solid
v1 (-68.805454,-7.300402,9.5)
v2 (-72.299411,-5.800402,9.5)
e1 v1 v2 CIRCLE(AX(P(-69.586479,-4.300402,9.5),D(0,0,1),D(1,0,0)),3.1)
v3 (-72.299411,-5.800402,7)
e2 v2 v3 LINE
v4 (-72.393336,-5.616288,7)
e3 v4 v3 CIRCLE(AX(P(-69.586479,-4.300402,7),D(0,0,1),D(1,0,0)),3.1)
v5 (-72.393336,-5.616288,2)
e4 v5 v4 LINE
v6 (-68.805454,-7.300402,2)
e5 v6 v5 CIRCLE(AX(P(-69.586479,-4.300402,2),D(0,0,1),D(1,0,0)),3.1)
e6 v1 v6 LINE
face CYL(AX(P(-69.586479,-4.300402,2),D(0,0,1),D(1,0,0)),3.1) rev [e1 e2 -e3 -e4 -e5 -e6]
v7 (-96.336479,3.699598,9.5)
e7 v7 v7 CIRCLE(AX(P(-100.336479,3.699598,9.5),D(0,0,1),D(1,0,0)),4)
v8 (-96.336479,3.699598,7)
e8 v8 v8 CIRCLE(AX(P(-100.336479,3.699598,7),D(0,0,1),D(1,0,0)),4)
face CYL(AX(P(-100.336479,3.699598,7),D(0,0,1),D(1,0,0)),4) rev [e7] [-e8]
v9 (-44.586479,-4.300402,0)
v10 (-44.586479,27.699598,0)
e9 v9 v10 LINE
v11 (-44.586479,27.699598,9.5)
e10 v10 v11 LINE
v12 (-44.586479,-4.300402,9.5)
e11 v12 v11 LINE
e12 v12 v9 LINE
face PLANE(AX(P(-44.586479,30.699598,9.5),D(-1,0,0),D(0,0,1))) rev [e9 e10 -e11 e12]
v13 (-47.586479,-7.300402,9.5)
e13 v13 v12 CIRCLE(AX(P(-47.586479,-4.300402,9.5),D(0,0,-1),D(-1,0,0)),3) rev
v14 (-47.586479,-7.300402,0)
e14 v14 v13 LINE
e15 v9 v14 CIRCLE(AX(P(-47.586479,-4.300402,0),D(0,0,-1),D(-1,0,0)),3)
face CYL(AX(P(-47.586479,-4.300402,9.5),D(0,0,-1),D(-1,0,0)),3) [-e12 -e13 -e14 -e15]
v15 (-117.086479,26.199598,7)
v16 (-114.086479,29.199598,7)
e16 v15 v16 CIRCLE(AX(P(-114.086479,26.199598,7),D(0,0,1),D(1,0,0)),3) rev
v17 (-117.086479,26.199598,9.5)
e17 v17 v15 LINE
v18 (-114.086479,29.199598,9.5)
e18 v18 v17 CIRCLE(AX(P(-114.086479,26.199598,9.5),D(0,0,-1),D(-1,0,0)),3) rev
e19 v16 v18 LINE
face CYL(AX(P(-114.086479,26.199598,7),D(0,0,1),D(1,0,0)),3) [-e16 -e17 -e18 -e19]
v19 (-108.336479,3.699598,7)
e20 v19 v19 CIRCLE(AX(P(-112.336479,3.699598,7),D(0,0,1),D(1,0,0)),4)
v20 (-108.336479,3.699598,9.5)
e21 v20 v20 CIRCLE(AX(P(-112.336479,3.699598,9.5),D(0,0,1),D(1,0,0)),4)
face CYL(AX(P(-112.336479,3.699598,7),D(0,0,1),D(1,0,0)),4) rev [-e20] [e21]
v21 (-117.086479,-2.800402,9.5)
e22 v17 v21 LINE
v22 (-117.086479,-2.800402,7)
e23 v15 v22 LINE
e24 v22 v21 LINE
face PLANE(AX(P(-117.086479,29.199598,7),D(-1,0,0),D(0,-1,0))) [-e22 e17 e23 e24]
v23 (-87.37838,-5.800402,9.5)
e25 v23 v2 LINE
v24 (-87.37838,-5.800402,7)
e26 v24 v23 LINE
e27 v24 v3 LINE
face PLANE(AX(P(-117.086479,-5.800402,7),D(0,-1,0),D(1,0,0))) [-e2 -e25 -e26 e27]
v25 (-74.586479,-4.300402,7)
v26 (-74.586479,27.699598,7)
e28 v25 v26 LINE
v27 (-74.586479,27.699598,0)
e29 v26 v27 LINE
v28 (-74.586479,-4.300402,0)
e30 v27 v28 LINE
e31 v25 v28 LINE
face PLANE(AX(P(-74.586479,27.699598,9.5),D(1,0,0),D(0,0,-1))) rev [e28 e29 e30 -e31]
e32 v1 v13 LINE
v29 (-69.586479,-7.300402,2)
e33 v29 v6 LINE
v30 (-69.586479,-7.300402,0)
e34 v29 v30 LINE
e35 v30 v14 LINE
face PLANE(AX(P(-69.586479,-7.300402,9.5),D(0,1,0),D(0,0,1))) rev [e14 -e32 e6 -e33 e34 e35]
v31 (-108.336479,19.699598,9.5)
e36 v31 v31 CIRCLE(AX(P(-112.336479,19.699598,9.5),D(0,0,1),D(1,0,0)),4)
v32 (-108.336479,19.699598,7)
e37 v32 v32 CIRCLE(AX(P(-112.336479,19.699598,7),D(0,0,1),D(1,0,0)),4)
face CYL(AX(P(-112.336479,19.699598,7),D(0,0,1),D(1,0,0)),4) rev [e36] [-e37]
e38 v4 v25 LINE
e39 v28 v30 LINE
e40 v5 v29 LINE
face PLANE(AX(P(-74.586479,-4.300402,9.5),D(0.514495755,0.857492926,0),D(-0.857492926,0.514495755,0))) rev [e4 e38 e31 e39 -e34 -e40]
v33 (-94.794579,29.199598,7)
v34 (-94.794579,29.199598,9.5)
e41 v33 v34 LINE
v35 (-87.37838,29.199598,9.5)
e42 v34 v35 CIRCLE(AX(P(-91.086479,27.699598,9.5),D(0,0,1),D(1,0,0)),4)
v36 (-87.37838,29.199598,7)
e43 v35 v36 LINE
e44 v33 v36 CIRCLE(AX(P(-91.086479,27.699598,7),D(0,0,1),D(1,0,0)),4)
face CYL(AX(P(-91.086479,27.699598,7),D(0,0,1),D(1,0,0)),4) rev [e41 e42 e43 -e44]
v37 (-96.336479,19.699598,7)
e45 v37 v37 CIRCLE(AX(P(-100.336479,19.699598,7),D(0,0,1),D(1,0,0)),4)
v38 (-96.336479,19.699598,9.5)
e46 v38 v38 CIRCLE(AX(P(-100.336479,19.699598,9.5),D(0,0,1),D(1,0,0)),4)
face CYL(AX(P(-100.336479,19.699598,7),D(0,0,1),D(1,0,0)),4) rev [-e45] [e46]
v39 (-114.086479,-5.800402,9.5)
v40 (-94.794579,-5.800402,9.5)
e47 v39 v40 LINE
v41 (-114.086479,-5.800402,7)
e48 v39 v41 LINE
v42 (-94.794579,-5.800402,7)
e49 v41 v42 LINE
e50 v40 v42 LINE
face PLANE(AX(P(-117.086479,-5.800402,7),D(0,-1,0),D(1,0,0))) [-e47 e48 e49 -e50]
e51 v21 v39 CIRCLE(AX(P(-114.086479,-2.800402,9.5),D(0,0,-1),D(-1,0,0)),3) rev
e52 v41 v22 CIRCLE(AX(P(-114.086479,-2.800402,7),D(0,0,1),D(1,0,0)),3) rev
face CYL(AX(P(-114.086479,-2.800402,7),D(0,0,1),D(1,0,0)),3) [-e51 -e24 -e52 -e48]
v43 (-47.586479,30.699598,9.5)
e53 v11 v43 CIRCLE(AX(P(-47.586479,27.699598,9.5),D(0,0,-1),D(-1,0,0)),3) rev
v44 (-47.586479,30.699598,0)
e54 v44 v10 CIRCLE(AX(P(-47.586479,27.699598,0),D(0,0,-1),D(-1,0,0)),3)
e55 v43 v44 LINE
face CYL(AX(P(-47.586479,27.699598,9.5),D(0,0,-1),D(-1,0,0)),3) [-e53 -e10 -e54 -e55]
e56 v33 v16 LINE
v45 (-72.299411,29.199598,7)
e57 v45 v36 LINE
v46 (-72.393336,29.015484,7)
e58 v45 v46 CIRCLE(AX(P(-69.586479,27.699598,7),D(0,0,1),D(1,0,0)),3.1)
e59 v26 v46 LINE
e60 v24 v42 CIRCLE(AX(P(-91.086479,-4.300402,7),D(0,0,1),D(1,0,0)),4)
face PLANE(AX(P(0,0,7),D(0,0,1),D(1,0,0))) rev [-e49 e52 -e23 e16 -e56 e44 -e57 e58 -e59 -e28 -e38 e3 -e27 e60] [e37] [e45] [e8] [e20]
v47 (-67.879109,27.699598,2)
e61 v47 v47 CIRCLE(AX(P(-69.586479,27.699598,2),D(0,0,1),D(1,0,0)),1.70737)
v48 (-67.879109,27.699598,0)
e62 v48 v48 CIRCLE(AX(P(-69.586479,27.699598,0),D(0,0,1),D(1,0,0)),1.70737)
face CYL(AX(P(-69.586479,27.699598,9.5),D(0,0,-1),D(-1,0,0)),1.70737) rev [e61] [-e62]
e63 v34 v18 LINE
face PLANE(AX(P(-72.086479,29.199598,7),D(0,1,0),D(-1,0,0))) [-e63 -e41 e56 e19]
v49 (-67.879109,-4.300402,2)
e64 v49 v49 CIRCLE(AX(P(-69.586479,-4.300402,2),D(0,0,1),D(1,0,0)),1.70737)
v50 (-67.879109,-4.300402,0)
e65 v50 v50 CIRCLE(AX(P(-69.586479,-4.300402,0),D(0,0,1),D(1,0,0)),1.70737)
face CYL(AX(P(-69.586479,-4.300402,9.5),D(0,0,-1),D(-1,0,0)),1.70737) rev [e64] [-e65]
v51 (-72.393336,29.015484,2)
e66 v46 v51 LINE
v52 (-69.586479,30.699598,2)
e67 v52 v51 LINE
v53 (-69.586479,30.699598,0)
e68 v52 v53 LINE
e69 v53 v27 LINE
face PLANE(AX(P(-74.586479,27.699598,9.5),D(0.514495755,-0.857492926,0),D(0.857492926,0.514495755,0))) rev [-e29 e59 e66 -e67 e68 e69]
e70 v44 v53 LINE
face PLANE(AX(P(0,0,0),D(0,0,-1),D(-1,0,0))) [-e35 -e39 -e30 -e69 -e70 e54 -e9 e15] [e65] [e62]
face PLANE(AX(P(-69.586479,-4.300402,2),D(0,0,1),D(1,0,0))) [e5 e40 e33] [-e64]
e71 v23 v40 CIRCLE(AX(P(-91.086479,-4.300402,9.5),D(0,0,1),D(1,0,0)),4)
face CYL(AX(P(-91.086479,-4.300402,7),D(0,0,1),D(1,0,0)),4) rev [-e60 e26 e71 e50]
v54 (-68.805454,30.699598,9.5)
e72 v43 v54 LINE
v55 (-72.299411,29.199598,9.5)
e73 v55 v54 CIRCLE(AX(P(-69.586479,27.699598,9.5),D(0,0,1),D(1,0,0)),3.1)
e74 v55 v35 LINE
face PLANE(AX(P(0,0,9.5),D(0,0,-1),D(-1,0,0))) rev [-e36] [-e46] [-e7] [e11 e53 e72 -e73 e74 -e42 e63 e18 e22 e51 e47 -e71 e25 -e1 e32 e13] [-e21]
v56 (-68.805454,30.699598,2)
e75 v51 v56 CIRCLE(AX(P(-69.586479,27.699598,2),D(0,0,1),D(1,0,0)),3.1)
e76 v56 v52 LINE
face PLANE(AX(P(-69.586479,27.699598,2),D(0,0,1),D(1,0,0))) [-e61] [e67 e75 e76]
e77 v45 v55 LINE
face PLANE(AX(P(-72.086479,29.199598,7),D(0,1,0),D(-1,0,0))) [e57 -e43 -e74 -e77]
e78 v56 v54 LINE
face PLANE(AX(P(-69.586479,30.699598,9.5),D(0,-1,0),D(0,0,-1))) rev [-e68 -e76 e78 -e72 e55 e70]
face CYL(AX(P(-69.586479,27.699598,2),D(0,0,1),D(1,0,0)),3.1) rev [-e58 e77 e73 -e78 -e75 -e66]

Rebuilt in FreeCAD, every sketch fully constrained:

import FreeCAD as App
import Part
import Sketcher
from FreeCAD import Vector


def edges_at(feature, points):
    """Names of the edges that pass closest to the given points."""
    edges = feature.Shape.Edges
    near = lambda p: min(range(len(edges)), key=lambda i: edges[i].distToShape(Part.Vertex(*p))[0])
    return sorted({f"Edge{near(p) + 1}" for p in points})


def add_polygon(sketch, points):
    """Adds a closed chain of lines whose ends are joined by coincident constraints."""
    first, n = sketch.GeometryCount, len(points)
    for a, b in zip(points, points[1:] + points[:1]):
        sketch.addGeometry(Part.LineSegment(App.Vector(*a, 0), App.Vector(*b, 0)), False)
    for i in range(n):
        sketch.addConstraint(Sketcher.Constraint("Coincident", first + i, 2, first + (i + 1) % n, 1))

doc = App.newDocument("Part")
body = doc.addObject("PartDesign::Body", "Body")

# Sketch on XY plane
sketch1 = body.newObject("Sketcher::SketchObject", "Sketch")
sketch1.AttachmentSupport = (doc.getObject("XY_Plane"), [""])
sketch1.MapMode = "FlatFace"
add_polygon(sketch1, [(-44.6, 30.7), (-69.6, 30.7), (-74.6, 27.7), (-74.6, -4.3), (-69.6, -7.3), (-44.6, -7.3)])  # lines 0-5
sketch1.addGeometry(Part.Circle(Vector(-69.6, -4.3, 0), Vector(0, 0, 1), 1.7), False)  # 6
sketch1.addGeometry(Part.Circle(Vector(-69.6, 27.7, 0), Vector(0, 0, 1), 1.7), False)  # 7
sketch1.addConstraint(Sketcher.Constraint("Horizontal", 0))
sketch1.addConstraint(Sketcher.Constraint("Vertical", 2))
sketch1.addConstraint(Sketcher.Constraint("Horizontal", 4))
sketch1.addConstraint(Sketcher.Constraint("Vertical", 5))
sketch1.addConstraint(Sketcher.Constraint("Equal", 6, 7))
sketch1.addConstraint(Sketcher.Constraint("Horizontal", 7, 3, 1, 2))
sketch1.addConstraint(Sketcher.Constraint("Horizontal", 6, 3, 2, 2))
sketch1.addConstraint(Sketcher.Constraint("Vertical", 6, 3, 7, 3))
sketch1.addConstraint(Sketcher.Constraint("Vertical", 7, 3, 0, 2))
sketch1.addConstraint(Sketcher.Constraint("Vertical", 0, 2, 3, 2))
sketch1.addConstraint(Sketcher.Constraint("Equal", 1, 3))
sketch1.addConstraint(Sketcher.Constraint("DistanceX", 0, 2, 0, 1, 25.0))
sketch1.addConstraint(Sketcher.Constraint("DistanceY", 2, 2, 2, 1, 32.0))
sketch1.addConstraint(Sketcher.Constraint("DistanceY", 5, 1, 5, 2, 38.0))
sketch1.addConstraint(Sketcher.Constraint("DistanceX", 1, 2, 7, 3, 5.0))
sketch1.addConstraint(Sketcher.Constraint("Diameter", 6, 3.41474))
sketch1.addConstraint(Sketcher.Constraint("DistanceX", 6, 3, -1, 1, 69.586479))
sketch1.addConstraint(Sketcher.Constraint("DistanceY", 6, 3, -1, 1, 4.300402))
pad1 = body.newObject("PartDesign::Pad", "Pad")
pad1.Profile = sketch1
pad1.Length = 9.5

# Sketch on XY plane
sketch2 = body.newObject("Sketcher::SketchObject", "Sketch001")
sketch2.AttachmentSupport = (doc.getObject("XY_Plane"), [""])
sketch2.MapMode = "FlatFace"
sketch2.AttachmentOffset = App.Placement(Vector(0, 0, 9.5), App.Rotation())
add_polygon(sketch2, [(-72.1, 29.2), (-117.1, 29.2), (-117.1, -5.8), (-72.1, -5.8), (-74.6, -4.3), (-74.6, 27.7)])  # lines 0-5
sketch2.addConstraint(Sketcher.Constraint("Horizontal", 0))
sketch2.addConstraint(Sketcher.Constraint("Vertical", 1))
sketch2.addConstraint(Sketcher.Constraint("Horizontal", 2))
sketch2.addConstraint(Sketcher.Constraint("Vertical", 4))
sketch2.addConstraint(Sketcher.Constraint("Vertical", 2, 2, 5, 2))
sketch2.addConstraint(Sketcher.Constraint("Equal", 3, 5))
sketch2.addConstraint(Sketcher.Constraint("DistanceX", 0, 2, 0, 1, 45.0))
sketch2.addConstraint(Sketcher.Constraint("DistanceY", 1, 2, 1, 1, 35.0))
sketch2.addConstraint(Sketcher.Constraint("DistanceY", 4, 1, 4, 2, 32.0))
sketch2.addConstraint(Sketcher.Constraint("DistanceX", 3, 2, 2, 2, 2.5))
sketch2.addConstraint(Sketcher.Constraint("DistanceX", 0, 2, -1, 1, 117.086479))
sketch2.addConstraint(Sketcher.Constraint("DistanceY", -1, 1, 0, 2, 29.199598))
pad2 = body.newObject("PartDesign::Pad", "Pad001")
pad2.Profile = sketch2
pad2.Length = 2.5
pad2.Reversed = True

# Sketch on XY plane
sketch3 = body.newObject("Sketcher::SketchObject", "Sketch002")
sketch3.AttachmentSupport = (doc.getObject("XY_Plane"), [""])
sketch3.MapMode = "FlatFace"
sketch3.AttachmentOffset = App.Placement(Vector(0, 0, 9.5), App.Rotation())
sketch3.addGeometry(Part.Circle(Vector(-91.1, -4.3, 0), Vector(0, 0, 1), 4), False)
sketch3.addGeometry(Part.Circle(Vector(-91.1, 27.7, 0), Vector(0, 0, 1), 4), False)
sketch3.addGeometry(Part.Circle(Vector(-121.6, -4.3, 0), Vector(0, 0, 1), 3.5), False)
sketch3.addGeometry(Part.Circle(Vector(-121.6, 27.7, 0), Vector(0, 0, 1), 3.5), False)
sketch3.addGeometry(Part.Circle(Vector(-100.3, 19.7, 0), Vector(0, 0, 1), 4), False)
sketch3.addGeometry(Part.Circle(Vector(-112.3, 19.7, 0), Vector(0, 0, 1), 4), False)
sketch3.addGeometry(Part.Circle(Vector(-112.3, 3.7, 0), Vector(0, 0, 1), 4), False)
sketch3.addGeometry(Part.Circle(Vector(-100.3, 3.7, 0), Vector(0, 0, 1), 4), False)
sketch3.addConstraint(Sketcher.Constraint("Equal", 0, 1))
sketch3.addConstraint(Sketcher.Constraint("Equal", 2, 3))
sketch3.addConstraint(Sketcher.Constraint("Equal", 1, 4))
sketch3.addConstraint(Sketcher.Constraint("Equal", 4, 5))
sketch3.addConstraint(Sketcher.Constraint("Equal", 5, 6))
sketch3.addConstraint(Sketcher.Constraint("Equal", 6, 7))
sketch3.addConstraint(Sketcher.Constraint("Horizontal", 0, 3, 2, 3))
sketch3.addConstraint(Sketcher.Constraint("Horizontal", 1, 3, 3, 3))
sketch3.addConstraint(Sketcher.Constraint("Horizontal", 4, 3, 5, 3))
sketch3.addConstraint(Sketcher.Constraint("Horizontal", 6, 3, 7, 3))
sketch3.addConstraint(Sketcher.Constraint("Vertical", 0, 3, 1, 3))
sketch3.addConstraint(Sketcher.Constraint("Vertical", 2, 3, 3, 3))
sketch3.addConstraint(Sketcher.Constraint("Vertical", 5, 3, 6, 3))
sketch3.addConstraint(Sketcher.Constraint("Vertical", 4, 3, 7, 3))
sketch3.addConstraint(Sketcher.Constraint("Diameter", 0, 8.0))
sketch3.addConstraint(Sketcher.Constraint("Diameter", 2, 7.0))
sketch3.addConstraint(Sketcher.Constraint("DistanceY", 0, 3, 1, 3, 32.0))
sketch3.addConstraint(Sketcher.Constraint("DistanceY", 4, 3, 1, 3, 8.0))
sketch3.addConstraint(Sketcher.Constraint("DistanceX", 5, 3, 4, 3, 12.0))
sketch3.addConstraint(Sketcher.Constraint("DistanceY", 2, 3, 6, 3, 8.0))
sketch3.addConstraint(Sketcher.Constraint("DistanceX", 2, 3, 0, 3, 30.5))
sketch3.addConstraint(Sketcher.Constraint("DistanceX", 4, 3, 1, 3, 9.25))
sketch3.addConstraint(Sketcher.Constraint("DistanceX", 0, 3, -1, 1, 91.086479))
sketch3.addConstraint(Sketcher.Constraint("DistanceY", 0, 3, -1, 1, 4.300402))
pocket1 = body.newObject("PartDesign::Pocket", "Pocket")
pocket1.Profile = sketch3
pocket1.Length = 2.5
doc.recompute()

fillet = body.newObject("PartDesign::Fillet", "Fillet")
fillet.Base = (pocket1, edges_at(pocket1, [
    (-44.586, 30.7, 4.75),
    (-44.586, -7.3, 4.75),
    (-117.086, -5.8, 8.25),
    (-117.086, 29.2, 8.25),
]))
fillet.Radius = 3

# Sketch on XY plane
sketch4 = body.newObject("Sketcher::SketchObject", "Sketch003")
sketch4.AttachmentSupport = (doc.getObject("XY_Plane"), [""])
sketch4.MapMode = "FlatFace"
sketch4.AttachmentOffset = App.Placement(Vector(0, 0, 9.5), App.Rotation())
sketch4.addGeometry(Part.Circle(Vector(-69.6, 27.7, 0), Vector(0, 0, 1), 3.1), False)
sketch4.addGeometry(Part.Circle(Vector(-69.6, -4.3, 0), Vector(0, 0, 1), 3.1), False)
sketch4.addConstraint(Sketcher.Constraint("Equal", 0, 1))
sketch4.addConstraint(Sketcher.Constraint("Vertical", 0, 3, 1, 3))
sketch4.addConstraint(Sketcher.Constraint("Diameter", 0, 6.2))
sketch4.addConstraint(Sketcher.Constraint("DistanceY", 1, 3, 0, 3, 32.0))
sketch4.addConstraint(Sketcher.Constraint("DistanceX", 0, 3, -1, 1, 69.586479))
sketch4.addConstraint(Sketcher.Constraint("DistanceY", -1, 1, 0, 3, 27.699598))
pocket2 = body.newObject("PartDesign::Pocket", "Pocket001")
pocket2.Profile = sketch4
pocket2.Length = 7.5

doc.recompute()
